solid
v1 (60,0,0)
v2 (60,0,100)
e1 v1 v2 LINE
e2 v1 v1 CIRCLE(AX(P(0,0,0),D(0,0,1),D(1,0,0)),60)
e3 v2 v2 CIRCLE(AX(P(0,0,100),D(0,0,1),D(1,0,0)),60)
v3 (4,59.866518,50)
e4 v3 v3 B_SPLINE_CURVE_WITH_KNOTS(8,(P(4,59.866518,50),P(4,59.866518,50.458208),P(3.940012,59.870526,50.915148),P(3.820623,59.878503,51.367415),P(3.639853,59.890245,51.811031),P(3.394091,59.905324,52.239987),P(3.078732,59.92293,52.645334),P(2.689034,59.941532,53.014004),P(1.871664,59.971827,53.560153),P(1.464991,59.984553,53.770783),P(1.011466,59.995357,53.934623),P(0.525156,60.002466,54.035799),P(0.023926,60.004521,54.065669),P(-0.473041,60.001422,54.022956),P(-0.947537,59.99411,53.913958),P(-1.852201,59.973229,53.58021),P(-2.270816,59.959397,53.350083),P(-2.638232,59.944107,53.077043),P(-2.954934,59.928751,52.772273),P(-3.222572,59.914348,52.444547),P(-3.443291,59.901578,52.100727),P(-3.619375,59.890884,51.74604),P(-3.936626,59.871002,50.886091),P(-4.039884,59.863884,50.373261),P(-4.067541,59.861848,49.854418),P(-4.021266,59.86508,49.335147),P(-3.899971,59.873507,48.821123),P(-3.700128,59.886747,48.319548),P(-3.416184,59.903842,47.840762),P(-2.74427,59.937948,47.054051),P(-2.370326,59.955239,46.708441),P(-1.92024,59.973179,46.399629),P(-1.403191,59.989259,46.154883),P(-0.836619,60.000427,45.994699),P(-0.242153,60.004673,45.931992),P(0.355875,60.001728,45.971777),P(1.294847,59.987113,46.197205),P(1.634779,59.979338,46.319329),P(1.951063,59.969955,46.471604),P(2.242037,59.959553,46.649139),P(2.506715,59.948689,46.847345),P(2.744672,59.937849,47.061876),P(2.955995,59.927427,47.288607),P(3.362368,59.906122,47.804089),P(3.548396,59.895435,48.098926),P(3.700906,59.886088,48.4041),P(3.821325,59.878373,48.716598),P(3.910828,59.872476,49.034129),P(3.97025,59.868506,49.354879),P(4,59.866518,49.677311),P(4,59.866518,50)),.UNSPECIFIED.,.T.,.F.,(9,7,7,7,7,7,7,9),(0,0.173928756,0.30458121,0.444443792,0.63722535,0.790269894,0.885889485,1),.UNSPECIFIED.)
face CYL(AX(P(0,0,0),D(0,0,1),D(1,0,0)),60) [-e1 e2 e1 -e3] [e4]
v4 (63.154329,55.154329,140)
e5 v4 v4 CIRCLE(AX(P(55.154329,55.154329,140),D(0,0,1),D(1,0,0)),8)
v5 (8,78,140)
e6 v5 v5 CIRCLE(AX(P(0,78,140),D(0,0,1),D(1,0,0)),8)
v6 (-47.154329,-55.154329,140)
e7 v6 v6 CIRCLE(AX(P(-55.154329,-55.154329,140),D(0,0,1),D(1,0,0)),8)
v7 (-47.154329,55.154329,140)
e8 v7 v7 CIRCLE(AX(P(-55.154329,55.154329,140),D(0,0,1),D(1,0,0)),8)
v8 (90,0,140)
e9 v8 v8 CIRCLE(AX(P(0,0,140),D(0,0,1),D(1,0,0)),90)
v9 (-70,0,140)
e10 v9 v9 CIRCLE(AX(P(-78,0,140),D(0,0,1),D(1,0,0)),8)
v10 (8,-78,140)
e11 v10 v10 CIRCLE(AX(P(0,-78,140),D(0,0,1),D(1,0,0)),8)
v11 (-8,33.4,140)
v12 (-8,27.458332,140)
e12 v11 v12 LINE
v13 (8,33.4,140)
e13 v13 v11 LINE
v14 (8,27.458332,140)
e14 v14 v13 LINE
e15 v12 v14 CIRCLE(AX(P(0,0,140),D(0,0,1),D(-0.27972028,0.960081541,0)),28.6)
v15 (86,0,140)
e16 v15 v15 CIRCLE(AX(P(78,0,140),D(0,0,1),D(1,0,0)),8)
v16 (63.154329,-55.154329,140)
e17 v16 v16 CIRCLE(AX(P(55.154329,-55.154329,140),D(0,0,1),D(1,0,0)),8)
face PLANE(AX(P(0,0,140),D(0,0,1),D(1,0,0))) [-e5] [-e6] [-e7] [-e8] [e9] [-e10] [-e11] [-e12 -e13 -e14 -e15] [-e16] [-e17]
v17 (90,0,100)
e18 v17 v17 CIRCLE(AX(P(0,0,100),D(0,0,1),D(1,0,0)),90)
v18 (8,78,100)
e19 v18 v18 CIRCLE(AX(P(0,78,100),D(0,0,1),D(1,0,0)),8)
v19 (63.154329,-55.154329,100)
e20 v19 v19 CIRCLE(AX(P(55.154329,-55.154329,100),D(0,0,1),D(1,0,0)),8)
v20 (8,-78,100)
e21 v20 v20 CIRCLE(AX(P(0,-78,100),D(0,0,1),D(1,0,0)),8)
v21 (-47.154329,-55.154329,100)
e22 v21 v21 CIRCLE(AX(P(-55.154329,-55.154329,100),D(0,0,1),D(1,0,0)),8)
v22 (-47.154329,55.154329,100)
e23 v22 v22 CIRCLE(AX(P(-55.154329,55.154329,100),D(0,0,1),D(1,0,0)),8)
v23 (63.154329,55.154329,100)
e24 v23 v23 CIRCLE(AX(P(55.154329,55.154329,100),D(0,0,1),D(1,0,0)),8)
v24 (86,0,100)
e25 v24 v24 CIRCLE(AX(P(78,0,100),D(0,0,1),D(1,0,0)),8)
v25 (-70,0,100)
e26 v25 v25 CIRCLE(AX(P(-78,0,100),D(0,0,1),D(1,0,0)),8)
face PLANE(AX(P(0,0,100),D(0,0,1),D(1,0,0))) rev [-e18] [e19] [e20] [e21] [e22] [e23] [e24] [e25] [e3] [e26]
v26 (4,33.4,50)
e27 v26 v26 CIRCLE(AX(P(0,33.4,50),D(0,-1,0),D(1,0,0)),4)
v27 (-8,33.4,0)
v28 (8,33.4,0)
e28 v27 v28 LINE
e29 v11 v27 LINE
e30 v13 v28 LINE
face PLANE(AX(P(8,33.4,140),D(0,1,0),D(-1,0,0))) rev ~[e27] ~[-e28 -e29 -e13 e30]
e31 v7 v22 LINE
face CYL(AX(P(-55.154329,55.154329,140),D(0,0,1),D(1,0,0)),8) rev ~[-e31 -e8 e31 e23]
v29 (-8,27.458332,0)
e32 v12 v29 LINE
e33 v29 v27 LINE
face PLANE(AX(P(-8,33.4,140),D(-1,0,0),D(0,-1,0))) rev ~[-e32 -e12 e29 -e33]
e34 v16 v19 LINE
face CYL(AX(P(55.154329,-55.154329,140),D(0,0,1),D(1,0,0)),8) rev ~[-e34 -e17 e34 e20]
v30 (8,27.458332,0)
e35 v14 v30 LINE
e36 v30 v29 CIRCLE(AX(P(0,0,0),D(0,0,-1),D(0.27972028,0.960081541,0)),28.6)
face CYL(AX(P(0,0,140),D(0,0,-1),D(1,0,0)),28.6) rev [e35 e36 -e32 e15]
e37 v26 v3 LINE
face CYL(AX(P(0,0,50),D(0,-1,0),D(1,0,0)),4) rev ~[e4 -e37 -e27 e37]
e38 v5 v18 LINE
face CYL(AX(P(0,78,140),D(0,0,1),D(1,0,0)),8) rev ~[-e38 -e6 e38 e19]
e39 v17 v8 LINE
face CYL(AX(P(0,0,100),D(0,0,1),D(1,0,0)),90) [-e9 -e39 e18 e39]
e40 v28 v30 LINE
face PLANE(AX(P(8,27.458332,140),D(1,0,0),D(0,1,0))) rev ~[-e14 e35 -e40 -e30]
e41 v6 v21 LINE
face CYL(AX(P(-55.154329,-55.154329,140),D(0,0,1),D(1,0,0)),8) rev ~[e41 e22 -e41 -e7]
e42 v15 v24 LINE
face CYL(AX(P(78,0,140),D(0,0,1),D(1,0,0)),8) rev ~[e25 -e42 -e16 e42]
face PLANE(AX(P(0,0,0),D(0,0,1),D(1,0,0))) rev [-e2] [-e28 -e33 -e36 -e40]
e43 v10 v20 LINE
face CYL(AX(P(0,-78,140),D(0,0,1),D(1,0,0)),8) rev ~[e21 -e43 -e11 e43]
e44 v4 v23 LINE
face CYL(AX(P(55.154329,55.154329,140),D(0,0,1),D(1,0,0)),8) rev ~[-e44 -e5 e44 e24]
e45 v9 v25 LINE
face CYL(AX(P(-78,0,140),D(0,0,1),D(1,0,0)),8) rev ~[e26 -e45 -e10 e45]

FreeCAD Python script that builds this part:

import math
import FreeCAD as App
import Part
import Sketcher

V = App.Vector
Q = App.Units.Quantity

doc = App.newDocument("Part")
body = doc.addObject("PartDesign::Body", "Body")

sketch1 = body.newObject("Sketcher::SketchObject", "Sketch")
sketch1.AttachmentSupport = (doc.getObject("XZ_Plane"), [""])
sketch1.MapMode = "FlatFace"
sketch1.addGeometry(Part.LineSegment(V(29, 140, 0), V(29, 0, 0)), False)
sketch1.addGeometry(Part.LineSegment(V(29, 0, 0), V(60, 0, 0)), False)
sketch1.addGeometry(Part.LineSegment(V(60, 0, 0), V(60, 100, 0)), False)
sketch1.addGeometry(Part.LineSegment(V(60, 100, 0), V(90, 100, 0)), False)
sketch1.addGeometry(Part.LineSegment(V(90, 100, 0), V(90, 140, 0)), False)
sketch1.addGeometry(Part.LineSegment(V(90, 140, 0), V(29, 140, 0)), False)
sketch1.addConstraint(Sketcher.Constraint("Coincident", 0, 2, 1, 1))
sketch1.addConstraint(Sketcher.Constraint("Coincident", 1, 2, 2, 1))
sketch1.addConstraint(Sketcher.Constraint("Coincident", 2, 2, 3, 1))
sketch1.addConstraint(Sketcher.Constraint("Coincident", 3, 2, 4, 1))
sketch1.addConstraint(Sketcher.Constraint("Coincident", 4, 2, 5, 1))
sketch1.addConstraint(Sketcher.Constraint("Coincident", 5, 2, 0, 1))
sketch1.addConstraint(Sketcher.Constraint("Vertical", 0))
sketch1.addConstraint(Sketcher.Constraint("Horizontal", 1))
sketch1.addConstraint(Sketcher.Constraint("Vertical", 2))
sketch1.addConstraint(Sketcher.Constraint("Horizontal", 3))
sketch1.addConstraint(Sketcher.Constraint("Vertical", 4))
sketch1.addConstraint(Sketcher.Constraint("Horizontal", 5))
sketch1.addConstraint(Sketcher.Constraint("PointOnObject", 0, 2, -1))
sketch1.addConstraint(Sketcher.Constraint("DistanceX", 3, 1, 3, 2, Q("30 mm")))
sketch1.addConstraint(Sketcher.Constraint("DistanceY", 0, 2, 0, 1, Q("140 mm")))
sketch1.addConstraint(Sketcher.Constraint("DistanceY", 2, 1, 2, 2, Q("100 mm")))
sketch1.addConstraint(Sketcher.Constraint("DistanceX", 1, 1, 1, 2, Q("31.4 mm")))
sketch1.addConstraint(Sketcher.Constraint("DistanceX", -1, 1, 1, 2, Q("60 mm")))
revolution = body.newObject("PartDesign::Revolution", "Revolution")
revolution.Profile = sketch1
revolution.ReferenceAxis = (sketch1, ["V_Axis"])
revolution.Angle = 360

sketch2 = body.newObject("Sketcher::SketchObject", "Sketch001")
sketch2.AttachmentSupport = (doc.getObject("XY_Plane"), [""])
sketch2.MapMode = "FlatFace"
sketch2.AttachmentOffset = App.Placement(V(0, 0, 140), App.Rotation())
sketch2.addGeometry(Part.LineSegment(V(8, 33, 0), V(-8, 33, 0)), False)
sketch2.addGeometry(Part.LineSegment(V(-8, 33, 0), V(-8, 27, 0)), False)
sketch2.addGeometry(Part.ArcOfCircle(Part.Circle(V(0, 0, 0), V(0, 0, 1), 29), math.radians(74), math.radians(106)), False)
sketch2.addGeometry(Part.LineSegment(V(8, 27, 0), V(8, 33, 0)), False)
sketch2.addConstraint(Sketcher.Constraint("Coincident", 0, 2, 1, 1))
sketch2.addConstraint(Sketcher.Constraint("Coincident", 1, 2, 2, 2))
sketch2.addConstraint(Sketcher.Constraint("Coincident", 2, 1, 3, 1))
sketch2.addConstraint(Sketcher.Constraint("Coincident", 3, 2, 0, 1))
sketch2.addConstraint(Sketcher.Constraint("Horizontal", 0))
sketch2.addConstraint(Sketcher.Constraint("Vertical", 1))
sketch2.addConstraint(Sketcher.Constraint("Vertical", 3))
sketch2.addConstraint(Sketcher.Constraint("Coincident", 2, 3, -1, 1))
sketch2.addConstraint(Sketcher.Constraint("Horizontal", 1, 2, 2, 1))
sketch2.addConstraint(Sketcher.Constraint("Radius", 2, Q("28.599998 mm")))
sketch2.addConstraint(Sketcher.Constraint("DistanceX", 0, 2, 0, 1, Q("16 mm")))
sketch2.addConstraint(Sketcher.Constraint("DistanceY", -1, 1, 0, 2, Q("33.4 mm")))
pocket1 = body.newObject("PartDesign::Pocket", "Pocket")
pocket1.Profile = sketch2
pocket1.Type = "ThroughAll"

sketch3 = body.newObject("Sketcher::SketchObject", "Sketch002")
sketch3.AttachmentSupport = (doc.getObject("XY_Plane"), [""])
sketch3.MapMode = "FlatFace"
sketch3.AttachmentOffset = App.Placement(V(0, 0, 140), App.Rotation())
sketch3.addGeometry(Part.Circle(V(-55, 55, 0), V(0, 0, 1), 8), False)
sketch3.addGeometry(Part.Circle(V(0, 78, 0), V(0, 0, 1), 8), False)
sketch3.addGeometry(Part.Circle(V(55, 55, 0), V(0, 0, 1), 8), False)
sketch3.addGeometry(Part.Circle(V(78, 0, 0), V(0, 0, 1), 8), False)
sketch3.addGeometry(Part.Circle(V(55, -55, 0), V(0, 0, 1), 8), False)
sketch3.addGeometry(Part.Circle(V(0, -78, 0), V(0, 0, 1), 8), False)
sketch3.addGeometry(Part.Circle(V(-55, -55, 0), V(0, 0, 1), 8), False)
sketch3.addGeometry(Part.Circle(V(-78, 0, 0), V(0, 0, 1), 8), False)
sketch3.addConstraint(Sketcher.Constraint("Equal", 0, 1))
sketch3.addConstraint(Sketcher.Constraint("Equal", 1, 2))
sketch3.addConstraint(Sketcher.Constraint("Equal", 2, 3))
sketch3.addConstraint(Sketcher.Constraint("Equal", 3, 4))
sketch3.addConstraint(Sketcher.Constraint("Equal", 4, 5))
sketch3.addConstraint(Sketcher.Constraint("Equal", 5, 6))
sketch3.addConstraint(Sketcher.Constraint("Equal", 6, 7))
sketch3.addConstraint(Sketcher.Constraint("Symmetric", 0, 3, 4, 3, -1, 1))
sketch3.addConstraint(Sketcher.Constraint("Symmetric", 1, 3, 5, 3, -1, 1))
sketch3.addConstraint(Sketcher.Constraint("Symmetric", 2, 3, 6, 3, -1, 1))
sketch3.addConstraint(Sketcher.Constraint("Symmetric", 3, 3, 7, 3, -1, 1))
sketch3.addConstraint(Sketcher.Constraint("Symmetric", 0, 3, 2, 3, -2))
sketch3.addConstraint(Sketcher.Constraint("PointOnObject", 1, 3, -2))
sketch3.addConstraint(Sketcher.Constraint("PointOnObject", 3, 3, -1))
sketch3.addConstraint(Sketcher.Constraint("Diameter", 0, Q("16 mm")))
sketch3.addConstraint(Sketcher.Constraint("DistanceY", -1, 1, 1, 3, Q("78 mm")))
sketch3.addConstraint(Sketcher.Constraint("DistanceX", -1, 1, 3, 3, Q("78 mm")))
sketch3.addConstraint(Sketcher.Constraint("DistanceX", 0, 3, -1, 1, Q("55.154329 mm")))
sketch3.addConstraint(Sketcher.Constraint("DistanceY", -1, 1, 0, 3, Q("55.154329 mm")))
pocket2 = body.newObject("PartDesign::Pocket", "Pocket001")
pocket2.Profile = sketch3
pocket2.Type = "ThroughAll"

sketch4 = body.newObject("Sketcher::SketchObject", "Sketch003")
sketch4.AttachmentSupport = (doc.getObject("XZ_Plane"), [""])
sketch4.MapMode = "FlatFace"
sketch4.addGeometry(Part.Circle(V(0, 50, 0), V(0, 0, 1), 4), False)
sketch4.addConstraint(Sketcher.Constraint("PointOnObject", 0, 3, -2))
sketch4.addConstraint(Sketcher.Constraint("Diameter", 0, Q("8 mm")))
sketch4.addConstraint(Sketcher.Constraint("DistanceY", -1, 1, 0, 3, Q("50 mm")))
pocket3 = body.newObject("PartDesign::Pocket", "Pocket002")
pocket3.Profile = sketch4
pocket3.Type = "ThroughAll"

doc.recompute()
